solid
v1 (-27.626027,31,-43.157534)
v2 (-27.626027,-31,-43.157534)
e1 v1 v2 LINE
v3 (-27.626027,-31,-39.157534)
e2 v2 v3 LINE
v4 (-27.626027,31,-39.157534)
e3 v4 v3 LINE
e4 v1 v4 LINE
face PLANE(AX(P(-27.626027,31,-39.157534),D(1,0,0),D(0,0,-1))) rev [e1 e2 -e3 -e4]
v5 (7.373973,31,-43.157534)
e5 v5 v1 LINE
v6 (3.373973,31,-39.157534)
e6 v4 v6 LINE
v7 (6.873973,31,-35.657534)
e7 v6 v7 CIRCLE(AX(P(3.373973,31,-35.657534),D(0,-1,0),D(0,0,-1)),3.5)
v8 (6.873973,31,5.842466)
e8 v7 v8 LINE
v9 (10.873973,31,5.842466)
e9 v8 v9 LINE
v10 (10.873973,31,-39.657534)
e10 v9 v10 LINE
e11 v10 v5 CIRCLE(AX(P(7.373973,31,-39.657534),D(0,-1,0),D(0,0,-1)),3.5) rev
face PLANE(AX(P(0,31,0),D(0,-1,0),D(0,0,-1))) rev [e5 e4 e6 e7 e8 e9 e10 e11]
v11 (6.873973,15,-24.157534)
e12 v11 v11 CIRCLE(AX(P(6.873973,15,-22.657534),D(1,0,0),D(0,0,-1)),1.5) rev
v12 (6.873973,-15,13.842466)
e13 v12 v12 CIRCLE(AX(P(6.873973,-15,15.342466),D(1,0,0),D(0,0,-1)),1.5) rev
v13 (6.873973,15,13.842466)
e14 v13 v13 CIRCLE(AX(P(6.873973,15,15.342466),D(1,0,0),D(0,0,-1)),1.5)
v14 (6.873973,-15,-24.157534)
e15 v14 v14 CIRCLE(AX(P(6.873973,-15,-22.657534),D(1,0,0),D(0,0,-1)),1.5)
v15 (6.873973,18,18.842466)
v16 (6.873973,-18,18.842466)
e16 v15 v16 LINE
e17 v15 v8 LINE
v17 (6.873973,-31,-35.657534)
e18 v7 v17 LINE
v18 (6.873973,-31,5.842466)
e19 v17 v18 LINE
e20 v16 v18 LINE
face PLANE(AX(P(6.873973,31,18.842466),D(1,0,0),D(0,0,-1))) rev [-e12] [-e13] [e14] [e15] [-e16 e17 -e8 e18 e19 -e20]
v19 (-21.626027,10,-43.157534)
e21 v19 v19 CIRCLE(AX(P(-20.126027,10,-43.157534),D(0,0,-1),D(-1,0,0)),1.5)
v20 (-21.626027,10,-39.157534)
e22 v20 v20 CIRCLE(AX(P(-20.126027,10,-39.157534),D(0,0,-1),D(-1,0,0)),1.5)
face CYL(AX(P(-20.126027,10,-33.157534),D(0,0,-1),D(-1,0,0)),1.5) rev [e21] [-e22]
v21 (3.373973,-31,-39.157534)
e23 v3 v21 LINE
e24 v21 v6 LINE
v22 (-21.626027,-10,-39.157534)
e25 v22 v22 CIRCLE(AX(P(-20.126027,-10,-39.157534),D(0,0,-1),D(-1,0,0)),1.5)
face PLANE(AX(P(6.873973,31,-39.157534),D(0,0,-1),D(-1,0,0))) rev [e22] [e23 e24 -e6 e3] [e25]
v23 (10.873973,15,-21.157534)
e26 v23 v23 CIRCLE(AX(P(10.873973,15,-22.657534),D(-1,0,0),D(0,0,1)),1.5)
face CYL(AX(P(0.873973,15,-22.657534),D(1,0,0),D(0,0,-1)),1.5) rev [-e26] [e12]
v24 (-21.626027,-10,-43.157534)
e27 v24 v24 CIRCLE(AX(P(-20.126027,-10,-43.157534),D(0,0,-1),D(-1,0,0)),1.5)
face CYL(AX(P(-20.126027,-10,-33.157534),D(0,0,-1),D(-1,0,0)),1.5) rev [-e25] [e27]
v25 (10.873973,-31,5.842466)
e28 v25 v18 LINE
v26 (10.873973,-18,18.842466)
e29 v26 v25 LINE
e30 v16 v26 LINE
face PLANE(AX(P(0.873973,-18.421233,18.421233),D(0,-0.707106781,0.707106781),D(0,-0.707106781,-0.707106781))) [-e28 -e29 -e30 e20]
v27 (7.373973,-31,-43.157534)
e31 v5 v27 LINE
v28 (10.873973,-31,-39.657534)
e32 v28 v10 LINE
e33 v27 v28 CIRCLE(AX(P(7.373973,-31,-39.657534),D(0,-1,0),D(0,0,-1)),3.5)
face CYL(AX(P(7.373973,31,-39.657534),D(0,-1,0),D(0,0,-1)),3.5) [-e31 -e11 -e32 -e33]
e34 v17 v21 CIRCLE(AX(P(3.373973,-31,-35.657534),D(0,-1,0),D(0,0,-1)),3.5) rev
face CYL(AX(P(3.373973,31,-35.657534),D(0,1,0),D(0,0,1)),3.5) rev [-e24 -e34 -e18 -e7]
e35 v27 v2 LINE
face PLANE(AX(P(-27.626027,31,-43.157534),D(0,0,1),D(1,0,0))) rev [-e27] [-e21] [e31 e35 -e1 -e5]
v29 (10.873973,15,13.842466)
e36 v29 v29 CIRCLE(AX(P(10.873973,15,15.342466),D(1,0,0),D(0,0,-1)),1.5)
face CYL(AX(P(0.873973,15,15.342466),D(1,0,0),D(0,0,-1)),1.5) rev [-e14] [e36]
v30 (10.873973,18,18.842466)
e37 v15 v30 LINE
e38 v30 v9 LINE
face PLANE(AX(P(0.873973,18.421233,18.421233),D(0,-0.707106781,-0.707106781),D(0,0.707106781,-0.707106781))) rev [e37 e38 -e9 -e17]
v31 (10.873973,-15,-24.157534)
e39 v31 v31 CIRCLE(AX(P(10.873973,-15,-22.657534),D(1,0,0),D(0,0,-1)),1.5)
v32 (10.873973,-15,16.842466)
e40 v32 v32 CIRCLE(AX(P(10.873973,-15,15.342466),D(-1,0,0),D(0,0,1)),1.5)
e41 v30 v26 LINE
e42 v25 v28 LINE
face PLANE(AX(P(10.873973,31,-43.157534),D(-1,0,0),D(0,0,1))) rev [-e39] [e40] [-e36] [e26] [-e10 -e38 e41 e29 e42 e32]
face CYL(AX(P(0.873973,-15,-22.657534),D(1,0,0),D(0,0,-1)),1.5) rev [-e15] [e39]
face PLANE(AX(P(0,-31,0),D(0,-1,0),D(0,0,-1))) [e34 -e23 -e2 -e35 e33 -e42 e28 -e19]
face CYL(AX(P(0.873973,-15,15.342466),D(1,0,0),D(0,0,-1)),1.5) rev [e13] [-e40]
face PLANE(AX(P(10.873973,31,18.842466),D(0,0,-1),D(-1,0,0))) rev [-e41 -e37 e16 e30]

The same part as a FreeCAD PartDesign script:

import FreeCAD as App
import Part
import Sketcher
from FreeCAD import Vector
Q = App.Units.Quantity


def edges_at(feature, points):
    """Names of the edges that pass closest to the given points."""
    edges = feature.Shape.Edges
    near = lambda p: min(range(len(edges)), key=lambda i: edges[i].distToShape(Part.Vertex(*p))[0])
    return sorted({f"Edge{near(p) + 1}" for p in points})


def add_polygon(sketch, points):
    """Adds a closed chain of lines whose ends are joined by coincident constraints."""
    first, n = sketch.GeometryCount, len(points)
    for a, b in zip(points, points[1:] + points[:1]):
        sketch.addGeometry(Part.LineSegment(App.Vector(*a, 0), App.Vector(*b, 0)), False)
    for i in range(n):
        sketch.addConstraint(Sketcher.Constraint("Coincident", first + i, 2, first + (i + 1) % n, 1))

doc = App.newDocument("Part")
params = doc.addObject("Spreadsheet::Sheet", "Params")
for row, (alias, value) in enumerate([
    ("sketch1_width", "4 mm"),
    ("sketch1_height", "58 mm"),
    ("sketch1_width2", "38.5 mm"),
    ("pad1_length", "62 mm"),
    ("sketch2_diameter", "3 mm"),
    ("sketch2_width", "13 mm"),
    ("pocket1_length", "10 mm"),
    ("fillet_radius", "3.5 mm"),
    ("fillet2_radius", "3.5 mm"),
    ("sketch3_diameter", "3 mm"),
    ("pocket2_length", "10 mm"),
], start=1):
    params.set(f"A{row}", alias)
    params.set(f"B{row}", "=" + value)
    params.setAlias(f"B{row}", alias)

body = doc.addObject("PartDesign::Body", "Body")

# Sketch on XZ plane
sketch1 = doc.addObject("Sketcher::SketchObject", "Sketch")
body.addObject(sketch1)
sketch1.AttachmentSupport = (doc.XZ_Plane, [""])
sketch1.MapMode = "FlatFace"
add_polygon(sketch1, [(10.873973, -43.157534), (-27.626027, -43.157534), (-27.626027, -39.157534), (6.873973, -39.157534), (6.873973, 18.842466), (10.873973, 18.842466)])  # lines 0-5
sketch1.addConstraint([
    Sketcher.Constraint("Horizontal", 0),
    Sketcher.Constraint("Vertical", 1),
    Sketcher.Constraint("Horizontal", 2),
    Sketcher.Constraint("Vertical", 3),
    Sketcher.Constraint("Horizontal", 4),
    Sketcher.Constraint("Vertical", 5),
    Sketcher.Constraint("Equal", 4, 1),
    Sketcher.Constraint("DistanceX", 4, 1, 4, 2, Q("4 mm")),
    Sketcher.Constraint("DistanceY", 3, 1, 3, 2, Q("58 mm")),
    Sketcher.Constraint("DistanceX", 0, 2, 0, 1, Q("38.5 mm")),
    Sketcher.Constraint("DistanceX", 0, 2, -1, 1, Q("27.626027 mm")),
    Sketcher.Constraint("DistanceY", 0, 2, -1, 1, Q("43.157534 mm")),
])
sketch1.setExpression("Constraints[13]", "Params.sketch1_width")
sketch1.setExpression("Constraints[14]", "Params.sketch1_height")
sketch1.setExpression("Constraints[15]", "Params.sketch1_width2")
pad1 = doc.addObject("PartDesign::Pad", "Pad")
body.addObject(pad1)
pad1.Profile = sketch1
pad1.setExpression("Length", "Params.pad1_length")
pad1.Midplane = True

# Sketch on YZ plane
sketch2 = doc.addObject("Sketcher::SketchObject", "Sketch001")
body.addObject(sketch2)
sketch2.AttachmentSupport = (doc.YZ_Plane, [""])
sketch2.MapMode = "FlatFace"
sketch2.AttachmentOffset = App.Placement(Vector(0, 0, 10.873973), App.Rotation())
add_polygon(sketch2, [(31, 5.842466), (31, 18.842466), (18, 18.842466)])  # lines 0-2
sketch2.addGeometry(Part.Circle(Vector(-15, -22.657534, 0), Vector(0, 0, 1), 1.5), False)  # 3
add_polygon(sketch2, [(-31, 5.842466), (-18, 18.842466), (-31, 18.842466)])  # lines 4-6
sketch2.addGeometry(Part.Circle(Vector(15, -22.657534, 0), Vector(0, 0, 1), 1.5), False)  # 7
sketch2.addGeometry(Part.Circle(Vector(15, 15.342466, 0), Vector(0, 0, 1), 1.5), False)  # 8
sketch2.addGeometry(Part.Circle(Vector(-15, 15.342466, 0), Vector(0, 0, 1), 1.5), False)  # 9
sketch2.addConstraint([
    Sketcher.Constraint("Vertical", 0),
    Sketcher.Constraint("Horizontal", 1),
    Sketcher.Constraint("Horizontal", 5),
    Sketcher.Constraint("Vertical", 6),
    Sketcher.Constraint("Equal", 3, 7),
    Sketcher.Constraint("Equal", 7, 8),
    Sketcher.Constraint("Equal", 8, 9),
    Sketcher.Constraint("Symmetric", 3, 3, 7, 3, -2),
    Sketcher.Constraint("Symmetric", 8, 3, 9, 3, -2),
    Sketcher.Constraint("Symmetric", 1, 2, 4, 2, -2),
    Sketcher.Constraint("Symmetric", 2, 2, 6, 2, -2),
    Sketcher.Constraint("Perpendicular", 2, 4),
    Sketcher.Constraint("Vertical", 7, 3, 8, 3),
    Sketcher.Constraint("Diameter", 3, Q("3 mm")),
    Sketcher.Constraint("DistanceX", 1, 2, 1, 1, Q("13 mm")),
    Sketcher.Constraint("DistanceX", 3, 3, -1, 1, Q("15 mm")),
    Sketcher.Constraint("DistanceX", -1, 1, 0, 2, Q("31 mm")),
    Sketcher.Constraint("DistanceY", 7, 3, 8, 3, Q("38 mm")),
    Sketcher.Constraint("DistanceY", 8, 3, 0, 2, Q("3.5 mm")),
    Sketcher.Constraint("DistanceY", 3, 3, -1, 1, Q("22.657534 mm")),
])
sketch2.setExpression("Constraints[19]", "Params.sketch2_diameter")
sketch2.setExpression("Constraints[20]", "Params.sketch2_width")
pocket1 = doc.addObject("PartDesign::Pocket", "Pocket")
body.addObject(pocket1)
pocket1.Profile = sketch2
pocket1.setExpression("Length", "Params.pocket1_length")
doc.recompute()

fillet = doc.addObject("PartDesign::Fillet", "Fillet")
body.addObject(fillet)
fillet.Base = (pocket1, edges_at(pocket1, [(10.874, 0, -43.158)]))
fillet.setExpression("Radius", "Params.fillet_radius")
doc.recompute()

fillet2 = doc.addObject("PartDesign::Fillet", "Fillet001")
body.addObject(fillet2)
fillet2.Base = (fillet, edges_at(fillet, [(6.874, 0, -39.158)]))
fillet2.setExpression("Radius", "Params.fillet2_radius")

# Sketch on XY plane
sketch3 = doc.addObject("Sketcher::SketchObject", "Sketch002")
body.addObject(sketch3)
sketch3.AttachmentSupport = (doc.XY_Plane, [""])
sketch3.MapMode = "FlatFace"
sketch3.AttachmentOffset = App.Placement(Vector(0, 0, -43.157534), App.Rotation())
sketch3.addGeometry([
    Part.Circle(Vector(-20.126027, 10, 0), Vector(0, 0, 1), 1.5),
    Part.Circle(Vector(-20.126027, -10, 0), Vector(0, 0, 1), 1.5),
], False)
sketch3.addConstraint([
    Sketcher.Constraint("Equal", 0, 1),
    Sketcher.Constraint("Symmetric", 0, 3, 1, 3, -1),
    Sketcher.Constraint("Diameter", 0, Q("3 mm")),
    Sketcher.Constraint("DistanceY", -1, 1, 0, 3, Q("10 mm")),
    Sketcher.Constraint("DistanceX", 0, 3, -1, 1, Q("20.126027 mm")),
])
sketch3.setExpression("Constraints[2]", "Params.sketch3_diameter")
pocket2 = doc.addObject("PartDesign::Pocket", "Pocket001")
body.addObject(pocket2)
pocket2.Profile = sketch3
pocket2.setExpression("Length", "Params.pocket2_length")
pocket2.Reversed = True

doc.recompute()
